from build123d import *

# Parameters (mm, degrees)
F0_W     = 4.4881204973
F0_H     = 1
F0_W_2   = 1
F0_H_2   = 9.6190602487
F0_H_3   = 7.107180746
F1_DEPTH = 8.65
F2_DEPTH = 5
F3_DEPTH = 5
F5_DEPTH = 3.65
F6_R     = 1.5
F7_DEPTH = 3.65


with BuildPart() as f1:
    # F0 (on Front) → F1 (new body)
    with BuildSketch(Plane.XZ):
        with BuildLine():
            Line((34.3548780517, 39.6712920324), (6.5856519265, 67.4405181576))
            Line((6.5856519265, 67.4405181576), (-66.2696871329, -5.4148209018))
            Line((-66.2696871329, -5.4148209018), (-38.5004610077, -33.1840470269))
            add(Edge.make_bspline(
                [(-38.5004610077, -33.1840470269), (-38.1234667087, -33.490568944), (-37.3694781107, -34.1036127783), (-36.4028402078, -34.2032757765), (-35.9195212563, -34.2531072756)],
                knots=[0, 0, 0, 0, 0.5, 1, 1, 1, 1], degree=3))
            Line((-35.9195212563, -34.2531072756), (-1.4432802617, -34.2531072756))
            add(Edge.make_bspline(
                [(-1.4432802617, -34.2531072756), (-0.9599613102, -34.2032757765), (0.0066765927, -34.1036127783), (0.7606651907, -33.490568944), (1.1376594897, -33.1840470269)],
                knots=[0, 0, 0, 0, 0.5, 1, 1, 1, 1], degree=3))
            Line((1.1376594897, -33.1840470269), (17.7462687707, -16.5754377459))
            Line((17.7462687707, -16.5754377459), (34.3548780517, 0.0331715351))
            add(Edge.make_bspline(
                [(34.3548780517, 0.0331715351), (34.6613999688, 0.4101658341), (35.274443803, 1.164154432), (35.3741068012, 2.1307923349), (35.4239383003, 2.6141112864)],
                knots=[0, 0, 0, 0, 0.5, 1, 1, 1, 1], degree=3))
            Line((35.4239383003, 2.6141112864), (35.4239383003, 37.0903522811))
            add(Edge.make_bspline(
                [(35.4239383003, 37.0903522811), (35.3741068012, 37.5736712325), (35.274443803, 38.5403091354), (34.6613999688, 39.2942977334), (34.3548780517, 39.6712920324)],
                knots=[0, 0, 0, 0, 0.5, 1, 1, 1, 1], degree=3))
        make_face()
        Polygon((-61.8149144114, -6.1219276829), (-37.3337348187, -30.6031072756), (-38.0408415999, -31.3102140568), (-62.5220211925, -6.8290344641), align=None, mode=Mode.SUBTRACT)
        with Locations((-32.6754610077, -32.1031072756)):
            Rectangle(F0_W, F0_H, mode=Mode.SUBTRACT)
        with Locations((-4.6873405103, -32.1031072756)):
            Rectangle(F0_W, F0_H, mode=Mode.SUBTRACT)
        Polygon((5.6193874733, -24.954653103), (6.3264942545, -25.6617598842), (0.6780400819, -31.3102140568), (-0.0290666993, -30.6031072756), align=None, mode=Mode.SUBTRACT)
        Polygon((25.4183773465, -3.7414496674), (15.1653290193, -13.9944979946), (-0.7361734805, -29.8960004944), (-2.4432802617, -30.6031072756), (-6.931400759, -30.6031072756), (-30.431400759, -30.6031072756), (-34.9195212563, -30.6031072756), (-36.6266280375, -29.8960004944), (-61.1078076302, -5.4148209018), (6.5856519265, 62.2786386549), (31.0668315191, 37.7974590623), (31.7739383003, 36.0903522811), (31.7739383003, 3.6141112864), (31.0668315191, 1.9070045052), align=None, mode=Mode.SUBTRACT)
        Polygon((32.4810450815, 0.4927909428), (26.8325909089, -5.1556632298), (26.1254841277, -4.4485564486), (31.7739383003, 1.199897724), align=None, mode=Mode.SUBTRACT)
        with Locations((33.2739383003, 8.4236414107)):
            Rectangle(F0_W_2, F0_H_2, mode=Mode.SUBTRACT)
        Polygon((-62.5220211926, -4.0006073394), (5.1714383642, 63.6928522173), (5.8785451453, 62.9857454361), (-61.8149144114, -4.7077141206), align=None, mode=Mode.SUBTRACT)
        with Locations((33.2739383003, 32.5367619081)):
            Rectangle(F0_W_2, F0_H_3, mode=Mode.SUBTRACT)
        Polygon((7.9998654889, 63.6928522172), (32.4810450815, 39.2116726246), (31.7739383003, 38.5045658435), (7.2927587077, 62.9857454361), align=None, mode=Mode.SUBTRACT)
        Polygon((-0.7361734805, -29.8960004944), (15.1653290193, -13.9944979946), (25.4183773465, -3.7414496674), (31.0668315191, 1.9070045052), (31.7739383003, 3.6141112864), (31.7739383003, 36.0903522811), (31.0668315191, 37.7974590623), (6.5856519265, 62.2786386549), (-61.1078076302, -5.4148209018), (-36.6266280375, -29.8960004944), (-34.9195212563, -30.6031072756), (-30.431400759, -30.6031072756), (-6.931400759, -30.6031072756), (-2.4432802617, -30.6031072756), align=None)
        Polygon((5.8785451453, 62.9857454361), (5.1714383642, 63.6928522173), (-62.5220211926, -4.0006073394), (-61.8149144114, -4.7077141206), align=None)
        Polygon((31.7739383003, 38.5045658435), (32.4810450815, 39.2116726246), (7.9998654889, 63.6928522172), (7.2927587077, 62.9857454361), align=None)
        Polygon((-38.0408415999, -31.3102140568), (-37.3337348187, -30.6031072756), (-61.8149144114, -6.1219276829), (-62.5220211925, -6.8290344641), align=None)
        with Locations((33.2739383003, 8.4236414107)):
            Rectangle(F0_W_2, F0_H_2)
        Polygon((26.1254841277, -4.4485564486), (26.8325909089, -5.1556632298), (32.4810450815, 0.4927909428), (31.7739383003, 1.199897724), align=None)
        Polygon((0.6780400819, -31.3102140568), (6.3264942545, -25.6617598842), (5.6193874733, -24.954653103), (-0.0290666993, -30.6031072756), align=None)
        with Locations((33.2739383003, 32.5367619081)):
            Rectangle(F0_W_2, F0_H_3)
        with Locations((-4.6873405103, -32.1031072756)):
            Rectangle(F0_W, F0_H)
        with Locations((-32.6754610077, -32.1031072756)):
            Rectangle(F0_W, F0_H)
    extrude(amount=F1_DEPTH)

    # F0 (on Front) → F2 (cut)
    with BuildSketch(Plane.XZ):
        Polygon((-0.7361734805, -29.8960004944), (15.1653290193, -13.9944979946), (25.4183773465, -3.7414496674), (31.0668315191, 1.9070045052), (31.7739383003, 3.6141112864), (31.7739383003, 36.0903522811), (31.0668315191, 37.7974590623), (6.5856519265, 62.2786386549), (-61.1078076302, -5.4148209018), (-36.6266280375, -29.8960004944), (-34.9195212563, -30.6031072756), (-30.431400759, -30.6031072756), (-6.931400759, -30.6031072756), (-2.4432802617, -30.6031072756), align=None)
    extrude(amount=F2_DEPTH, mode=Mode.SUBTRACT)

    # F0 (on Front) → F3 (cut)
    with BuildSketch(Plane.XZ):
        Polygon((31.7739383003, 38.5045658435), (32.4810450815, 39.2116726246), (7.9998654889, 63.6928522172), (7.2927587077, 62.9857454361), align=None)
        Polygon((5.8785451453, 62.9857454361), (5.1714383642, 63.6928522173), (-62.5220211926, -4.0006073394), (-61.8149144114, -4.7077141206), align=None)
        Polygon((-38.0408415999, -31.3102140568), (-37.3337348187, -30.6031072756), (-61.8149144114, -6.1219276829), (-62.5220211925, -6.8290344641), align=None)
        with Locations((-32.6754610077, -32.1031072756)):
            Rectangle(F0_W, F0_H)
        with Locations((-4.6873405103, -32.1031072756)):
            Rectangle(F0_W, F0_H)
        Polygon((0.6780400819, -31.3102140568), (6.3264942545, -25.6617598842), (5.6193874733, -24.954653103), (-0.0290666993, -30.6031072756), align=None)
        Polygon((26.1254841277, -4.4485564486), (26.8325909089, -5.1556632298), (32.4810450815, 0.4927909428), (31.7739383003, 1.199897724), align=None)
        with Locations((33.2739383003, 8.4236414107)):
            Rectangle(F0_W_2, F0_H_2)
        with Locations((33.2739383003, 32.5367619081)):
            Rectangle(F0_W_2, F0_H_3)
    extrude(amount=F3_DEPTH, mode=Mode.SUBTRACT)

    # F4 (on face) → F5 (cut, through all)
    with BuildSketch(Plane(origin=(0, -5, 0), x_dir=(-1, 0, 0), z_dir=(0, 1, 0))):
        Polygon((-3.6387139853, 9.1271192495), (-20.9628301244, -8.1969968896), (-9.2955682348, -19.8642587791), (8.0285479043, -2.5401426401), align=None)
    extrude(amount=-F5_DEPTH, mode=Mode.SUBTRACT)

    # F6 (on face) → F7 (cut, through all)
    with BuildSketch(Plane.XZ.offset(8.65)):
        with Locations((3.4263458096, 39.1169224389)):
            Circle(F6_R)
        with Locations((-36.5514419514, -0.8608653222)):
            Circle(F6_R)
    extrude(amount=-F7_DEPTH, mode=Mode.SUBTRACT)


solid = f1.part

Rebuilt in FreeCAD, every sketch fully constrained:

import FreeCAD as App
import Part
import Sketcher
Q = App.Units.Quantity

doc = App.newDocument("Part")
body = doc.addObject("PartDesign::Body", "Body")

# Sketch on XZ plane
sketch1 = doc.addObject("Sketcher::SketchObject", "Sketch")
body.addObject(sketch1)
sketch1.AttachmentSupport = (doc.XZ_Plane, [""])
sketch1.MapMode = "FlatFace"
sketch1.addGeometry([
    Part.LineSegment(App.Vector(34.354878, 39.671292, 0), App.Vector(6.585652, 67.440518, 0)),  # 0
    Part.LineSegment(App.Vector(6.585652, 67.440518, 0), App.Vector(-66.269687, -5.414821, 0)),  # 1
    Part.LineSegment(App.Vector(-66.269687, -5.414821, 0), App.Vector(-38.500461, -33.184047, 0)),  # 2
    Part.BSplineCurve([App.Vector(-38.500461, -33.184047, 0), App.Vector(-38.123467, -33.490569, 0), App.Vector(-37.369478, -34.103613, 0), App.Vector(-36.40284, -34.203276, 0), App.Vector(-35.919521, -34.253107, 0)], [4, 1, 4], [0, 0.5, 1], False, 3, [1, 1, 1, 1, 1], False),  # 3
    Part.LineSegment(App.Vector(-35.919521, -34.253107, 0), App.Vector(-1.44328, -34.253107, 0)),  # 4
    Part.BSplineCurve([App.Vector(-1.44328, -34.253107, 0), App.Vector(-0.959961, -34.203276, 0), App.Vector(0.006677, -34.103613, 0), App.Vector(0.760665, -33.490569, 0), App.Vector(1.137659, -33.184047, 0)], [4, 1, 4], [0, 0.5, 1], False, 3, [1, 1, 1, 1, 1], False),  # 5
    Part.LineSegment(App.Vector(1.137659, -33.184047, 0), App.Vector(34.354878, 0.033172, 0)),  # 6
    Part.BSplineCurve([App.Vector(34.354878, 0.033172, 0), App.Vector(34.6614, 0.410166, 0), App.Vector(35.274444, 1.164154, 0), App.Vector(35.374107, 2.130792, 0), App.Vector(35.423938, 2.614111, 0)], [4, 1, 4], [0, 0.5, 1], False, 3, [1, 1, 1, 1, 1], False),  # 7
    Part.LineSegment(App.Vector(35.423938, 2.614111, 0), App.Vector(35.423938, 37.090352, 0)),  # 8
    Part.BSplineCurve([App.Vector(35.423938, 37.090352, 0), App.Vector(35.374107, 37.573671, 0), App.Vector(35.274444, 38.540309, 0), App.Vector(34.6614, 39.294298, 0), App.Vector(34.354878, 39.671292, 0)], [4, 1, 4], [0, 0.5, 1], False, 3, [1, 1, 1, 1, 1], False),  # 9
], False)
sketch1.addConstraint([
    Sketcher.Constraint("Block", 3),
    Sketcher.Constraint("Block", 5),
    Sketcher.Constraint("Block", 7),
    Sketcher.Constraint("Block", 9),
    Sketcher.Constraint("Coincident", 0, 2, 1, 1),
    Sketcher.Constraint("Coincident", 1, 2, 2, 1),
    Sketcher.Constraint("Coincident", 2, 2, 3, 1),
    Sketcher.Constraint("Coincident", 3, 2, 4, 1),
    Sketcher.Constraint("Coincident", 4, 2, 5, 1),
    Sketcher.Constraint("Coincident", 5, 2, 6, 1),
    Sketcher.Constraint("Coincident", 6, 2, 7, 1),
    Sketcher.Constraint("Coincident", 7, 2, 8, 1),
    Sketcher.Constraint("Coincident", 8, 2, 9, 1),
    Sketcher.Constraint("Coincident", 9, 2, 0, 1),
    Sketcher.Constraint("Distance", 1, Q("103.033009 mm")),
    Sketcher.Constraint("DistanceX", -1, 1, 0, 2, Q("6.585652 mm")),
    Sketcher.Constraint("DistanceY", -1, 1, 0, 2, Q("67.440518 mm")),
    Sketcher.Constraint("DistanceY", 1, 2, -1, 1, Q("5.414821 mm")),
])
pad1 = doc.addObject("PartDesign::Pad", "Pad")
body.addObject(pad1)
pad1.Profile = sketch1
pad1.Length = 8.65

# Sketch on XZ plane
sketch2 = doc.addObject("Sketcher::SketchObject", "Sketch001")
body.addObject(sketch2)
sketch2.AttachmentSupport = (doc.XZ_Plane, [""])
sketch2.MapMode = "FlatFace"
sketch2.addGeometry([
    Part.LineSegment(App.Vector(-0.736173, -29.896, 0), App.Vector(31.066832, 1.907005, 0)),  # 0
    Part.LineSegment(App.Vector(31.066832, 1.907005, 0), App.Vector(31.773938, 3.614111, 0)),  # 1
    Part.LineSegment(App.Vector(31.773938, 3.614111, 0), App.Vector(31.773938, 36.090352, 0)),  # 2
    Part.LineSegment(App.Vector(31.773938, 36.090352, 0), App.Vector(31.066832, 37.797459, 0)),  # 3
    Part.LineSegment(App.Vector(31.066832, 37.797459, 0), App.Vector(6.585652, 62.278639, 0)),  # 4
    Part.LineSegment(App.Vector(6.585652, 62.278639, 0), App.Vector(-61.107808, -5.414821, 0)),  # 5
    Part.LineSegment(App.Vector(-61.107808, -5.414821, 0), App.Vector(-36.626628, -29.896, 0)),  # 6
    Part.LineSegment(App.Vector(-36.626628, -29.896, 0), App.Vector(-34.919521, -30.603107, 0)),  # 7
    Part.LineSegment(App.Vector(-34.919521, -30.603107, 0), App.Vector(-2.44328, -30.603107, 0)),  # 8
    Part.LineSegment(App.Vector(-2.44328, -30.603107, 0), App.Vector(-0.736173, -29.896, 0)),  # 9
], False)
sketch2.addConstraint([
    Sketcher.Constraint("Coincident", 0, 2, 1, 1),
    Sketcher.Constraint("Coincident", 1, 2, 2, 1),
    Sketcher.Constraint("Coincident", 2, 2, 3, 1),
    Sketcher.Constraint("Coincident", 3, 2, 4, 1),
    Sketcher.Constraint("Coincident", 4, 2, 5, 1),
    Sketcher.Constraint("Coincident", 5, 2, 6, 1),
    Sketcher.Constraint("Coincident", 6, 2, 7, 1),
    Sketcher.Constraint("Coincident", 7, 2, 8, 1),
    Sketcher.Constraint("Coincident", 8, 2, 9, 1),
    Sketcher.Constraint("Coincident", 9, 2, 0, 1),
    Sketcher.Constraint("Vertical", 2),
    Sketcher.Constraint("Horizontal", 8),
    Sketcher.Constraint("Perpendicular", 0, 4),
    Sketcher.Constraint("Perpendicular", 4, 5),
    Sketcher.Constraint("Perpendicular", 5, 6),
    Sketcher.Constraint("Perpendicular", 1, 7),
    Sketcher.Constraint("Perpendicular", 3, 9),
    Sketcher.Constraint("Horizontal", 6, 2, 9, 2),
    Sketcher.Constraint("Vertical", 0, 2, 3, 2),
    Sketcher.Constraint("Equal", 8, 2),
    Sketcher.Constraint("Equal", 1, 3),
    Sketcher.Constraint("Equal", 4, 6),
    Sketcher.Constraint("Equal", 3, 7),
    Sketcher.Constraint("Angle", 1, Q("67.5 deg")),
    Sketcher.Constraint("DistanceY", 6, 2, -1, 1, Q("29.896 mm")),
    Sketcher.Constraint("DistanceX", 8, 1, 8, 2, Q("32.476241 mm")),
    Sketcher.Constraint("Distance", 0, Q("44.976241 mm")),
    Sketcher.Constraint("Distance", 1, Q("1.847759 mm")),
    Sketcher.Constraint("DistanceX", -1, 1, 0, 2, Q("31.066832 mm")),
    Sketcher.Constraint("DistanceX", -1, 1, 4, 2, Q("6.585652 mm")),
])
pocket1 = doc.addObject("PartDesign::Pocket", "Pocket")
body.addObject(pocket1)
pocket1.Profile = sketch2
pocket1.Length = 5
pocket1.Reversed = True

# Sketch on XZ plane
sketch3 = doc.addObject("Sketcher::SketchObject", "Sketch002")
body.addObject(sketch3)
sketch3.AttachmentSupport = (doc.XZ_Plane, [""])
sketch3.MapMode = "FlatFace"
sketch3.addGeometry([
    Part.LineSegment(App.Vector(31.773938, 38.504566, 0), App.Vector(32.481045, 39.211673, 0)),  # 0
    Part.LineSegment(App.Vector(32.481045, 39.211673, 0), App.Vector(7.999865, 63.692852, 0)),  # 1
    Part.LineSegment(App.Vector(7.999865, 63.692852, 0), App.Vector(7.292759, 62.985745, 0)),  # 2
    Part.LineSegment(App.Vector(7.292759, 62.985745, 0), App.Vector(31.773938, 38.504566, 0)),  # 3
    Part.LineSegment(App.Vector(5.878545, 62.985745, 0), App.Vector(5.171438, 63.692852, 0)),  # 4
    Part.LineSegment(App.Vector(5.171438, 63.692852, 0), App.Vector(-62.522021, -4.000607, 0)),  # 5
    Part.LineSegment(App.Vector(-62.522021, -4.000607, 0), App.Vector(-61.814914, -4.707714, 0)),  # 6
    Part.LineSegment(App.Vector(-61.814914, -4.707714, 0), App.Vector(5.878545, 62.985745, 0)),  # 7
    Part.LineSegment(App.Vector(-38.040842, -31.310214, 0), App.Vector(-37.333735, -30.603107, 0)),  # 8
    Part.LineSegment(App.Vector(-37.333735, -30.603107, 0), App.Vector(-61.814914, -6.121928, 0)),  # 9
    Part.LineSegment(App.Vector(-61.814914, -6.121928, 0), App.Vector(-62.522021, -6.829034, 0)),  # 10
    Part.LineSegment(App.Vector(-62.522021, -6.829034, 0), App.Vector(-38.040842, -31.310214, 0)),  # 11
    Part.LineSegment(App.Vector(-34.919521, -31.603107, 0), App.Vector(-34.919521, -32.603107, 0)),  # 12
    Part.LineSegment(App.Vector(-34.919521, -32.603107, 0), App.Vector(-30.431401, -32.603107, 0)),  # 13
    Part.LineSegment(App.Vector(-30.431401, -32.603107, 0), App.Vector(-30.431401, -31.603107, 0)),  # 14
    Part.LineSegment(App.Vector(-30.431401, -31.603107, 0), App.Vector(-34.919521, -31.603107, 0)),  # 15
    Part.LineSegment(App.Vector(-6.931401, -31.603107, 0), App.Vector(-6.931401, -32.603107, 0)),  # 16
    Part.LineSegment(App.Vector(-6.931401, -32.603107, 0), App.Vector(-2.44328, -32.603107, 0)),  # 17
    Part.LineSegment(App.Vector(-2.44328, -32.603107, 0), App.Vector(-2.44328, -31.603107, 0)),  # 18
    Part.LineSegment(App.Vector(-2.44328, -31.603107, 0), App.Vector(-6.931401, -31.603107, 0)),  # 19
    Part.LineSegment(App.Vector(0.67804, -31.310214, 0), App.Vector(6.326494, -25.66176, 0)),  # 20
    Part.LineSegment(App.Vector(6.326494, -25.66176, 0), App.Vector(5.619387, -24.954653, 0)),  # 21
    Part.LineSegment(App.Vector(5.619387, -24.954653, 0), App.Vector(-0.029067, -30.603107, 0)),  # 22
    Part.LineSegment(App.Vector(-0.029067, -30.603107, 0), App.Vector(0.67804, -31.310214, 0)),  # 23
    Part.LineSegment(App.Vector(26.125484, -4.448556, 0), App.Vector(26.832591, -5.155663, 0)),  # 24
    Part.LineSegment(App.Vector(26.832591, -5.155663, 0), App.Vector(32.481045, 0.492791, 0)),  # 25
    Part.LineSegment(App.Vector(32.481045, 0.492791, 0), App.Vector(31.773938, 1.199898, 0)),  # 26
    Part.LineSegment(App.Vector(31.773938, 1.199898, 0), App.Vector(26.125484, -4.448556, 0)),  # 27
    Part.LineSegment(App.Vector(32.773938, 13.233172, 0), App.Vector(32.773938, 3.614111, 0)),  # 28
    Part.LineSegment(App.Vector(32.773938, 3.614111, 0), App.Vector(33.773938, 3.614111, 0)),  # 29
    Part.LineSegment(App.Vector(33.773938, 3.614111, 0), App.Vector(33.773938, 13.233172, 0)),  # 30
    Part.LineSegment(App.Vector(33.773938, 13.233172, 0), App.Vector(32.773938, 13.233172, 0)),  # 31
    Part.LineSegment(App.Vector(32.773938, 36.090352, 0), App.Vector(32.773938, 28.983172, 0)),  # 32
    Part.LineSegment(App.Vector(32.773938, 28.983172, 0), App.Vector(33.773938, 28.983172, 0)),  # 33
    Part.LineSegment(App.Vector(33.773938, 28.983172, 0), App.Vector(33.773938, 36.090352, 0)),  # 34
    Part.LineSegment(App.Vector(33.773938, 36.090352, 0), App.Vector(32.773938, 36.090352, 0)),  # 35
], False)
sketch3.addConstraint([
    Sketcher.Constraint("Coincident", 0, 2, 1, 1),
    Sketcher.Constraint("Coincident", 1, 2, 2, 1),
    Sketcher.Constraint("Coincident", 2, 2, 3, 1),
    Sketcher.Constraint("Coincident", 3, 2, 0, 1),
    Sketcher.Constraint("Coincident", 4, 2, 5, 1),
    Sketcher.Constraint("Coincident", 5, 2, 6, 1),
    Sketcher.Constraint("Coincident", 6, 2, 7, 1),
    Sketcher.Constraint("Coincident", 7, 2, 4, 1),
    Sketcher.Constraint("Coincident", 8, 2, 9, 1),
    Sketcher.Constraint("Coincident", 9, 2, 10, 1),
    Sketcher.Constraint("Coincident", 10, 2, 11, 1),
    Sketcher.Constraint("Coincident", 11, 2, 8, 1),
    Sketcher.Constraint("Coincident", 12, 2, 13, 1),
    Sketcher.Constraint("Coincident", 13, 2, 14, 1),
    Sketcher.Constraint("Coincident", 14, 2, 15, 1),
    Sketcher.Constraint("Coincident", 15, 2, 12, 1),
    Sketcher.Constraint("Coincident", 16, 2, 17, 1),
    Sketcher.Constraint("Coincident", 17, 2, 18, 1),
    Sketcher.Constraint("Coincident", 18, 2, 19, 1),
    Sketcher.Constraint("Coincident", 19, 2, 16, 1),
    Sketcher.Constraint("Coincident", 20, 2, 21, 1),
    Sketcher.Constraint("Coincident", 21, 2, 22, 1),
    Sketcher.Constraint("Coincident", 22, 2, 23, 1),
    Sketcher.Constraint("Coincident", 23, 2, 20, 1),
    Sketcher.Constraint("Coincident", 24, 2, 25, 1),
    Sketcher.Constraint("Coincident", 25, 2, 26, 1),
    Sketcher.Constraint("Coincident", 26, 2, 27, 1),
    Sketcher.Constraint("Coincident", 27, 2, 24, 1),
    Sketcher.Constraint("Coincident", 28, 2, 29, 1),
    Sketcher.Constraint("Coincident", 29, 2, 30, 1),
    Sketcher.Constraint("Coincident", 30, 2, 31, 1),
    Sketcher.Constraint("Coincident", 31, 2, 28, 1),
    Sketcher.Constraint("Coincident", 32, 2, 33, 1),
    Sketcher.Constraint("Coincident", 33, 2, 34, 1),
    Sketcher.Constraint("Coincident", 34, 2, 35, 1),
    Sketcher.Constraint("Coincident", 35, 2, 32, 1),
    Sketcher.Constraint("Vertical", 12),
    Sketcher.Constraint("Horizontal", 13),
    Sketcher.Constraint("Vertical", 14),
    Sketcher.Constraint("Horizontal", 15),
    Sketcher.Constraint("Vertical", 16),
    Sketcher.Constraint("Horizontal", 17),
    Sketcher.Constraint("Vertical", 18),
    Sketcher.Constraint("Horizontal", 19),
    Sketcher.Constraint("Vertical", 28),
    Sketcher.Constraint("Horizontal", 29),
    Sketcher.Constraint("Vertical", 30),
    Sketcher.Constraint("Horizontal", 31),
    Sketcher.Constraint("Vertical", 32),
    Sketcher.Constraint("Horizontal", 33),
    Sketcher.Constraint("Vertical", 34),
    Sketcher.Constraint("Horizontal", 35),
    Sketcher.Constraint("Perpendicular", 0, 1),
    Sketcher.Constraint("Perpendicular", 1, 2),
    Sketcher.Constraint("Perpendicular", 2, 3),
    Sketcher.Constraint("Parallel", 3, 4),
    Sketcher.Constraint("Perpendicular", 4, 5),
    Sketcher.Constraint("Perpendicular", 5, 6),
    Sketcher.Constraint("Perpendicular", 6, 7),
    Sketcher.Constraint("Parallel", 7, 8),
    Sketcher.Constraint("Perpendicular", 8, 9),
    Sketcher.Constraint("Perpendicular", 9, 10),
    Sketcher.Constraint("Perpendicular", 10, 11),
    Sketcher.Constraint("Perpendicular", 11, 20),
    Sketcher.Constraint("Perpendicular", 20, 21),
    Sketcher.Constraint("Perpendicular", 21, 22),
    Sketcher.Constraint("Perpendicular", 22, 23),
    Sketcher.Constraint("Parallel", 23, 24),
    Sketcher.Constraint("Perpendicular", 24, 25),
    Sketcher.Constraint("Perpendicular", 25, 26),
    Sketcher.Constraint("Perpendicular", 26, 27),
    Sketcher.Constraint("Horizontal", 1, 2, 4, 2),
    Sketcher.Constraint("Horizontal", 2, 2, 7, 2),
    Sketcher.Constraint("Horizontal", 13, 2, 16, 2),
    Sketcher.Constraint("Horizontal", 15, 2, 18, 2),
    Sketcher.Constraint("Horizontal", 8, 2, 22, 2),
    Sketcher.Constraint("Horizontal", 11, 2, 23, 2),
    Sketcher.Constraint("Vertical", 6, 2, 9, 2),
    Sketcher.Constraint("Vertical", 5, 2, 10, 2),
    Sketcher.Constraint("Vertical", 0, 2, 25, 2),
    Sketcher.Constraint("Vertical", 3, 2, 26, 2),
    Sketcher.Constraint("Vertical", 31, 2, 32, 2),
    Sketcher.Constraint("Vertical", 30, 2, 33, 2),
    Sketcher.Constraint("Equal", 15, 17),
    Sketcher.Constraint("Equal", 35, 12),
    Sketcher.Constraint("Equal", 2, 4),
    Sketcher.Constraint("Equal", 3, 9),
    Sketcher.Constraint("Equal", 22, 25),
    Sketcher.Constraint("DistanceX", 29, 1, 29, 2, Q("1 mm")),
    Sketcher.Constraint("Distance", 0, Q("1 mm")),
    Sketcher.Constraint("DistanceY", 12, 2, 8, 2, Q("2 mm")),
    Sketcher.Constraint("DistanceX", 26, 2, 28, 2, Q("1 mm")),
    Sketcher.Constraint("DistanceX", 13, 2, 16, 2, Q("23.5 mm")),
    Sketcher.Constraint("DistanceY", 31, 2, 32, 2, Q("15.75 mm")),
    Sketcher.Constraint("DistanceX", 13, 1, 13, 2, Q("4.48812 mm")),
    Sketcher.Constraint("DistanceY", 28, 2, 28, 1, Q("9.61906 mm")),
    Sketcher.Constraint("DistanceY", 32, 2, 32, 1, Q("7.107181 mm")),
    Sketcher.Constraint("DistanceX", 13, 2, -1, 1, Q("30.431401 mm")),
    Sketcher.Constraint("DistanceX", 4, 2, 3, 2, Q("26.6025 mm")),
    Sketcher.Constraint("DistanceY", 8, 2, 5, 2, Q("26.6025 mm")),
    Sketcher.Constraint("DistanceX", 10, 2, 12, 2, Q("27.6025 mm")),
    Sketcher.Constraint("DistanceY", 32, 2, 0, 2, Q("10.228501 mm")),
    Sketcher.Constraint("Distance", 5, Q("95.733009 mm")),
    Sketcher.Constraint("Distance", 20, Q("7.98812 mm")),
    Sketcher.Constraint("DistanceX", -1, 1, 2, 2, Q("7.292759 mm")),
    Sketcher.Constraint("DistanceY", 20, 2, -1, 1, Q("25.66176 mm")),
    Sketcher.Constraint("DistanceX", -1, 1, 23, 2, Q("0.67804 mm")),
    Sketcher.Constraint("DistanceY", -1, 1, 25, 2, Q("0.492791 mm")),
])
pocket2 = doc.addObject("PartDesign::Pocket", "Pocket001")
body.addObject(pocket2)
pocket2.Profile = sketch3
pocket2.Length = 5
pocket2.Reversed = True

# Sketch on XZ plane
sketch4 = doc.addObject("Sketcher::SketchObject", "Sketch003")
body.addObject(sketch4)
sketch4.AttachmentSupport = (doc.XZ_Plane, [""])
sketch4.MapMode = "FlatFace"
sketch4.AttachmentOffset = App.Placement(App.Vector(0, 0, 5), App.Rotation())
sketch4.addGeometry([
    Part.LineSegment(App.Vector(3.638714, 9.127119, 0), App.Vector(20.96283, -8.196997, 0)),
    Part.LineSegment(App.Vector(20.96283, -8.196997, 0), App.Vector(9.295568, -19.864259, 0)),
    Part.LineSegment(App.Vector(9.295568, -19.864259, 0), App.Vector(-8.028548, -2.540143, 0)),
    Part.LineSegment(App.Vector(-8.028548, -2.540143, 0), App.Vector(3.638714, 9.127119, 0)),
], False)
sketch4.addConstraint([
    Sketcher.Constraint("Coincident", 0, 2, 1, 1),
    Sketcher.Constraint("Coincident", 1, 2, 2, 1),
    Sketcher.Constraint("Coincident", 2, 2, 3, 1),
    Sketcher.Constraint("Coincident", 3, 2, 0, 1),
    Sketcher.Constraint("Perpendicular", 0, 1),
    Sketcher.Constraint("Perpendicular", 1, 2),
    Sketcher.Constraint("Perpendicular", 2, 3),
    Sketcher.Constraint("Angle", 0, Q("-45 deg")),
    Sketcher.Constraint("Distance", 0, Q("24.5 mm")),
    Sketcher.Constraint("Distance", 1, Q("16.5 mm")),
    Sketcher.Constraint("DistanceX", -1, 1, 0, 2, Q("20.96283 mm")),
    Sketcher.Constraint("DistanceY", 1, 2, -1, 1, Q("19.864259 mm")),
])
pocket3 = doc.addObject("PartDesign::Pocket", "Pocket002")
body.addObject(pocket3)
pocket3.Profile = sketch4
pocket3.Type = "ThroughAll"
pocket3.Reversed = True

# Sketch on XZ plane
sketch5 = doc.addObject("Sketcher::SketchObject", "Sketch004")
body.addObject(sketch5)
sketch5.AttachmentSupport = (doc.XZ_Plane, [""])
sketch5.MapMode = "FlatFace"
sketch5.AttachmentOffset = App.Placement(App.Vector(0, 0, 8.65), App.Rotation())
sketch5.addGeometry([
    Part.Circle(App.Vector(3.426346, 39.116922, 0), App.Vector(0, 0, 1), 1.5),
    Part.Circle(App.Vector(-36.551442, -0.860865, 0), App.Vector(0, 0, 1), 1.5),
], False)
sketch5.addConstraint([
    Sketcher.Constraint("Equal", 0, 1),
    Sketcher.Constraint("Diameter", 0, Q("3 mm")),
    Sketcher.Constraint("DistanceX", 1, 3, -1, 1, Q("36.551442 mm")),
    Sketcher.Constraint("DistanceX", -1, 1, 0, 3, Q("3.426346 mm")),
    Sketcher.Constraint("DistanceY", -1, 1, 0, 3, Q("39.116922 mm")),
    Sketcher.Constraint("DistanceY", 1, 3, -1, 1, Q("0.860865 mm")),
])
pocket4 = doc.addObject("PartDesign::Pocket", "Pocket003")
body.addObject(pocket4)
pocket4.Profile = sketch5
pocket4.Type = "ThroughAll"

doc.recompute()
